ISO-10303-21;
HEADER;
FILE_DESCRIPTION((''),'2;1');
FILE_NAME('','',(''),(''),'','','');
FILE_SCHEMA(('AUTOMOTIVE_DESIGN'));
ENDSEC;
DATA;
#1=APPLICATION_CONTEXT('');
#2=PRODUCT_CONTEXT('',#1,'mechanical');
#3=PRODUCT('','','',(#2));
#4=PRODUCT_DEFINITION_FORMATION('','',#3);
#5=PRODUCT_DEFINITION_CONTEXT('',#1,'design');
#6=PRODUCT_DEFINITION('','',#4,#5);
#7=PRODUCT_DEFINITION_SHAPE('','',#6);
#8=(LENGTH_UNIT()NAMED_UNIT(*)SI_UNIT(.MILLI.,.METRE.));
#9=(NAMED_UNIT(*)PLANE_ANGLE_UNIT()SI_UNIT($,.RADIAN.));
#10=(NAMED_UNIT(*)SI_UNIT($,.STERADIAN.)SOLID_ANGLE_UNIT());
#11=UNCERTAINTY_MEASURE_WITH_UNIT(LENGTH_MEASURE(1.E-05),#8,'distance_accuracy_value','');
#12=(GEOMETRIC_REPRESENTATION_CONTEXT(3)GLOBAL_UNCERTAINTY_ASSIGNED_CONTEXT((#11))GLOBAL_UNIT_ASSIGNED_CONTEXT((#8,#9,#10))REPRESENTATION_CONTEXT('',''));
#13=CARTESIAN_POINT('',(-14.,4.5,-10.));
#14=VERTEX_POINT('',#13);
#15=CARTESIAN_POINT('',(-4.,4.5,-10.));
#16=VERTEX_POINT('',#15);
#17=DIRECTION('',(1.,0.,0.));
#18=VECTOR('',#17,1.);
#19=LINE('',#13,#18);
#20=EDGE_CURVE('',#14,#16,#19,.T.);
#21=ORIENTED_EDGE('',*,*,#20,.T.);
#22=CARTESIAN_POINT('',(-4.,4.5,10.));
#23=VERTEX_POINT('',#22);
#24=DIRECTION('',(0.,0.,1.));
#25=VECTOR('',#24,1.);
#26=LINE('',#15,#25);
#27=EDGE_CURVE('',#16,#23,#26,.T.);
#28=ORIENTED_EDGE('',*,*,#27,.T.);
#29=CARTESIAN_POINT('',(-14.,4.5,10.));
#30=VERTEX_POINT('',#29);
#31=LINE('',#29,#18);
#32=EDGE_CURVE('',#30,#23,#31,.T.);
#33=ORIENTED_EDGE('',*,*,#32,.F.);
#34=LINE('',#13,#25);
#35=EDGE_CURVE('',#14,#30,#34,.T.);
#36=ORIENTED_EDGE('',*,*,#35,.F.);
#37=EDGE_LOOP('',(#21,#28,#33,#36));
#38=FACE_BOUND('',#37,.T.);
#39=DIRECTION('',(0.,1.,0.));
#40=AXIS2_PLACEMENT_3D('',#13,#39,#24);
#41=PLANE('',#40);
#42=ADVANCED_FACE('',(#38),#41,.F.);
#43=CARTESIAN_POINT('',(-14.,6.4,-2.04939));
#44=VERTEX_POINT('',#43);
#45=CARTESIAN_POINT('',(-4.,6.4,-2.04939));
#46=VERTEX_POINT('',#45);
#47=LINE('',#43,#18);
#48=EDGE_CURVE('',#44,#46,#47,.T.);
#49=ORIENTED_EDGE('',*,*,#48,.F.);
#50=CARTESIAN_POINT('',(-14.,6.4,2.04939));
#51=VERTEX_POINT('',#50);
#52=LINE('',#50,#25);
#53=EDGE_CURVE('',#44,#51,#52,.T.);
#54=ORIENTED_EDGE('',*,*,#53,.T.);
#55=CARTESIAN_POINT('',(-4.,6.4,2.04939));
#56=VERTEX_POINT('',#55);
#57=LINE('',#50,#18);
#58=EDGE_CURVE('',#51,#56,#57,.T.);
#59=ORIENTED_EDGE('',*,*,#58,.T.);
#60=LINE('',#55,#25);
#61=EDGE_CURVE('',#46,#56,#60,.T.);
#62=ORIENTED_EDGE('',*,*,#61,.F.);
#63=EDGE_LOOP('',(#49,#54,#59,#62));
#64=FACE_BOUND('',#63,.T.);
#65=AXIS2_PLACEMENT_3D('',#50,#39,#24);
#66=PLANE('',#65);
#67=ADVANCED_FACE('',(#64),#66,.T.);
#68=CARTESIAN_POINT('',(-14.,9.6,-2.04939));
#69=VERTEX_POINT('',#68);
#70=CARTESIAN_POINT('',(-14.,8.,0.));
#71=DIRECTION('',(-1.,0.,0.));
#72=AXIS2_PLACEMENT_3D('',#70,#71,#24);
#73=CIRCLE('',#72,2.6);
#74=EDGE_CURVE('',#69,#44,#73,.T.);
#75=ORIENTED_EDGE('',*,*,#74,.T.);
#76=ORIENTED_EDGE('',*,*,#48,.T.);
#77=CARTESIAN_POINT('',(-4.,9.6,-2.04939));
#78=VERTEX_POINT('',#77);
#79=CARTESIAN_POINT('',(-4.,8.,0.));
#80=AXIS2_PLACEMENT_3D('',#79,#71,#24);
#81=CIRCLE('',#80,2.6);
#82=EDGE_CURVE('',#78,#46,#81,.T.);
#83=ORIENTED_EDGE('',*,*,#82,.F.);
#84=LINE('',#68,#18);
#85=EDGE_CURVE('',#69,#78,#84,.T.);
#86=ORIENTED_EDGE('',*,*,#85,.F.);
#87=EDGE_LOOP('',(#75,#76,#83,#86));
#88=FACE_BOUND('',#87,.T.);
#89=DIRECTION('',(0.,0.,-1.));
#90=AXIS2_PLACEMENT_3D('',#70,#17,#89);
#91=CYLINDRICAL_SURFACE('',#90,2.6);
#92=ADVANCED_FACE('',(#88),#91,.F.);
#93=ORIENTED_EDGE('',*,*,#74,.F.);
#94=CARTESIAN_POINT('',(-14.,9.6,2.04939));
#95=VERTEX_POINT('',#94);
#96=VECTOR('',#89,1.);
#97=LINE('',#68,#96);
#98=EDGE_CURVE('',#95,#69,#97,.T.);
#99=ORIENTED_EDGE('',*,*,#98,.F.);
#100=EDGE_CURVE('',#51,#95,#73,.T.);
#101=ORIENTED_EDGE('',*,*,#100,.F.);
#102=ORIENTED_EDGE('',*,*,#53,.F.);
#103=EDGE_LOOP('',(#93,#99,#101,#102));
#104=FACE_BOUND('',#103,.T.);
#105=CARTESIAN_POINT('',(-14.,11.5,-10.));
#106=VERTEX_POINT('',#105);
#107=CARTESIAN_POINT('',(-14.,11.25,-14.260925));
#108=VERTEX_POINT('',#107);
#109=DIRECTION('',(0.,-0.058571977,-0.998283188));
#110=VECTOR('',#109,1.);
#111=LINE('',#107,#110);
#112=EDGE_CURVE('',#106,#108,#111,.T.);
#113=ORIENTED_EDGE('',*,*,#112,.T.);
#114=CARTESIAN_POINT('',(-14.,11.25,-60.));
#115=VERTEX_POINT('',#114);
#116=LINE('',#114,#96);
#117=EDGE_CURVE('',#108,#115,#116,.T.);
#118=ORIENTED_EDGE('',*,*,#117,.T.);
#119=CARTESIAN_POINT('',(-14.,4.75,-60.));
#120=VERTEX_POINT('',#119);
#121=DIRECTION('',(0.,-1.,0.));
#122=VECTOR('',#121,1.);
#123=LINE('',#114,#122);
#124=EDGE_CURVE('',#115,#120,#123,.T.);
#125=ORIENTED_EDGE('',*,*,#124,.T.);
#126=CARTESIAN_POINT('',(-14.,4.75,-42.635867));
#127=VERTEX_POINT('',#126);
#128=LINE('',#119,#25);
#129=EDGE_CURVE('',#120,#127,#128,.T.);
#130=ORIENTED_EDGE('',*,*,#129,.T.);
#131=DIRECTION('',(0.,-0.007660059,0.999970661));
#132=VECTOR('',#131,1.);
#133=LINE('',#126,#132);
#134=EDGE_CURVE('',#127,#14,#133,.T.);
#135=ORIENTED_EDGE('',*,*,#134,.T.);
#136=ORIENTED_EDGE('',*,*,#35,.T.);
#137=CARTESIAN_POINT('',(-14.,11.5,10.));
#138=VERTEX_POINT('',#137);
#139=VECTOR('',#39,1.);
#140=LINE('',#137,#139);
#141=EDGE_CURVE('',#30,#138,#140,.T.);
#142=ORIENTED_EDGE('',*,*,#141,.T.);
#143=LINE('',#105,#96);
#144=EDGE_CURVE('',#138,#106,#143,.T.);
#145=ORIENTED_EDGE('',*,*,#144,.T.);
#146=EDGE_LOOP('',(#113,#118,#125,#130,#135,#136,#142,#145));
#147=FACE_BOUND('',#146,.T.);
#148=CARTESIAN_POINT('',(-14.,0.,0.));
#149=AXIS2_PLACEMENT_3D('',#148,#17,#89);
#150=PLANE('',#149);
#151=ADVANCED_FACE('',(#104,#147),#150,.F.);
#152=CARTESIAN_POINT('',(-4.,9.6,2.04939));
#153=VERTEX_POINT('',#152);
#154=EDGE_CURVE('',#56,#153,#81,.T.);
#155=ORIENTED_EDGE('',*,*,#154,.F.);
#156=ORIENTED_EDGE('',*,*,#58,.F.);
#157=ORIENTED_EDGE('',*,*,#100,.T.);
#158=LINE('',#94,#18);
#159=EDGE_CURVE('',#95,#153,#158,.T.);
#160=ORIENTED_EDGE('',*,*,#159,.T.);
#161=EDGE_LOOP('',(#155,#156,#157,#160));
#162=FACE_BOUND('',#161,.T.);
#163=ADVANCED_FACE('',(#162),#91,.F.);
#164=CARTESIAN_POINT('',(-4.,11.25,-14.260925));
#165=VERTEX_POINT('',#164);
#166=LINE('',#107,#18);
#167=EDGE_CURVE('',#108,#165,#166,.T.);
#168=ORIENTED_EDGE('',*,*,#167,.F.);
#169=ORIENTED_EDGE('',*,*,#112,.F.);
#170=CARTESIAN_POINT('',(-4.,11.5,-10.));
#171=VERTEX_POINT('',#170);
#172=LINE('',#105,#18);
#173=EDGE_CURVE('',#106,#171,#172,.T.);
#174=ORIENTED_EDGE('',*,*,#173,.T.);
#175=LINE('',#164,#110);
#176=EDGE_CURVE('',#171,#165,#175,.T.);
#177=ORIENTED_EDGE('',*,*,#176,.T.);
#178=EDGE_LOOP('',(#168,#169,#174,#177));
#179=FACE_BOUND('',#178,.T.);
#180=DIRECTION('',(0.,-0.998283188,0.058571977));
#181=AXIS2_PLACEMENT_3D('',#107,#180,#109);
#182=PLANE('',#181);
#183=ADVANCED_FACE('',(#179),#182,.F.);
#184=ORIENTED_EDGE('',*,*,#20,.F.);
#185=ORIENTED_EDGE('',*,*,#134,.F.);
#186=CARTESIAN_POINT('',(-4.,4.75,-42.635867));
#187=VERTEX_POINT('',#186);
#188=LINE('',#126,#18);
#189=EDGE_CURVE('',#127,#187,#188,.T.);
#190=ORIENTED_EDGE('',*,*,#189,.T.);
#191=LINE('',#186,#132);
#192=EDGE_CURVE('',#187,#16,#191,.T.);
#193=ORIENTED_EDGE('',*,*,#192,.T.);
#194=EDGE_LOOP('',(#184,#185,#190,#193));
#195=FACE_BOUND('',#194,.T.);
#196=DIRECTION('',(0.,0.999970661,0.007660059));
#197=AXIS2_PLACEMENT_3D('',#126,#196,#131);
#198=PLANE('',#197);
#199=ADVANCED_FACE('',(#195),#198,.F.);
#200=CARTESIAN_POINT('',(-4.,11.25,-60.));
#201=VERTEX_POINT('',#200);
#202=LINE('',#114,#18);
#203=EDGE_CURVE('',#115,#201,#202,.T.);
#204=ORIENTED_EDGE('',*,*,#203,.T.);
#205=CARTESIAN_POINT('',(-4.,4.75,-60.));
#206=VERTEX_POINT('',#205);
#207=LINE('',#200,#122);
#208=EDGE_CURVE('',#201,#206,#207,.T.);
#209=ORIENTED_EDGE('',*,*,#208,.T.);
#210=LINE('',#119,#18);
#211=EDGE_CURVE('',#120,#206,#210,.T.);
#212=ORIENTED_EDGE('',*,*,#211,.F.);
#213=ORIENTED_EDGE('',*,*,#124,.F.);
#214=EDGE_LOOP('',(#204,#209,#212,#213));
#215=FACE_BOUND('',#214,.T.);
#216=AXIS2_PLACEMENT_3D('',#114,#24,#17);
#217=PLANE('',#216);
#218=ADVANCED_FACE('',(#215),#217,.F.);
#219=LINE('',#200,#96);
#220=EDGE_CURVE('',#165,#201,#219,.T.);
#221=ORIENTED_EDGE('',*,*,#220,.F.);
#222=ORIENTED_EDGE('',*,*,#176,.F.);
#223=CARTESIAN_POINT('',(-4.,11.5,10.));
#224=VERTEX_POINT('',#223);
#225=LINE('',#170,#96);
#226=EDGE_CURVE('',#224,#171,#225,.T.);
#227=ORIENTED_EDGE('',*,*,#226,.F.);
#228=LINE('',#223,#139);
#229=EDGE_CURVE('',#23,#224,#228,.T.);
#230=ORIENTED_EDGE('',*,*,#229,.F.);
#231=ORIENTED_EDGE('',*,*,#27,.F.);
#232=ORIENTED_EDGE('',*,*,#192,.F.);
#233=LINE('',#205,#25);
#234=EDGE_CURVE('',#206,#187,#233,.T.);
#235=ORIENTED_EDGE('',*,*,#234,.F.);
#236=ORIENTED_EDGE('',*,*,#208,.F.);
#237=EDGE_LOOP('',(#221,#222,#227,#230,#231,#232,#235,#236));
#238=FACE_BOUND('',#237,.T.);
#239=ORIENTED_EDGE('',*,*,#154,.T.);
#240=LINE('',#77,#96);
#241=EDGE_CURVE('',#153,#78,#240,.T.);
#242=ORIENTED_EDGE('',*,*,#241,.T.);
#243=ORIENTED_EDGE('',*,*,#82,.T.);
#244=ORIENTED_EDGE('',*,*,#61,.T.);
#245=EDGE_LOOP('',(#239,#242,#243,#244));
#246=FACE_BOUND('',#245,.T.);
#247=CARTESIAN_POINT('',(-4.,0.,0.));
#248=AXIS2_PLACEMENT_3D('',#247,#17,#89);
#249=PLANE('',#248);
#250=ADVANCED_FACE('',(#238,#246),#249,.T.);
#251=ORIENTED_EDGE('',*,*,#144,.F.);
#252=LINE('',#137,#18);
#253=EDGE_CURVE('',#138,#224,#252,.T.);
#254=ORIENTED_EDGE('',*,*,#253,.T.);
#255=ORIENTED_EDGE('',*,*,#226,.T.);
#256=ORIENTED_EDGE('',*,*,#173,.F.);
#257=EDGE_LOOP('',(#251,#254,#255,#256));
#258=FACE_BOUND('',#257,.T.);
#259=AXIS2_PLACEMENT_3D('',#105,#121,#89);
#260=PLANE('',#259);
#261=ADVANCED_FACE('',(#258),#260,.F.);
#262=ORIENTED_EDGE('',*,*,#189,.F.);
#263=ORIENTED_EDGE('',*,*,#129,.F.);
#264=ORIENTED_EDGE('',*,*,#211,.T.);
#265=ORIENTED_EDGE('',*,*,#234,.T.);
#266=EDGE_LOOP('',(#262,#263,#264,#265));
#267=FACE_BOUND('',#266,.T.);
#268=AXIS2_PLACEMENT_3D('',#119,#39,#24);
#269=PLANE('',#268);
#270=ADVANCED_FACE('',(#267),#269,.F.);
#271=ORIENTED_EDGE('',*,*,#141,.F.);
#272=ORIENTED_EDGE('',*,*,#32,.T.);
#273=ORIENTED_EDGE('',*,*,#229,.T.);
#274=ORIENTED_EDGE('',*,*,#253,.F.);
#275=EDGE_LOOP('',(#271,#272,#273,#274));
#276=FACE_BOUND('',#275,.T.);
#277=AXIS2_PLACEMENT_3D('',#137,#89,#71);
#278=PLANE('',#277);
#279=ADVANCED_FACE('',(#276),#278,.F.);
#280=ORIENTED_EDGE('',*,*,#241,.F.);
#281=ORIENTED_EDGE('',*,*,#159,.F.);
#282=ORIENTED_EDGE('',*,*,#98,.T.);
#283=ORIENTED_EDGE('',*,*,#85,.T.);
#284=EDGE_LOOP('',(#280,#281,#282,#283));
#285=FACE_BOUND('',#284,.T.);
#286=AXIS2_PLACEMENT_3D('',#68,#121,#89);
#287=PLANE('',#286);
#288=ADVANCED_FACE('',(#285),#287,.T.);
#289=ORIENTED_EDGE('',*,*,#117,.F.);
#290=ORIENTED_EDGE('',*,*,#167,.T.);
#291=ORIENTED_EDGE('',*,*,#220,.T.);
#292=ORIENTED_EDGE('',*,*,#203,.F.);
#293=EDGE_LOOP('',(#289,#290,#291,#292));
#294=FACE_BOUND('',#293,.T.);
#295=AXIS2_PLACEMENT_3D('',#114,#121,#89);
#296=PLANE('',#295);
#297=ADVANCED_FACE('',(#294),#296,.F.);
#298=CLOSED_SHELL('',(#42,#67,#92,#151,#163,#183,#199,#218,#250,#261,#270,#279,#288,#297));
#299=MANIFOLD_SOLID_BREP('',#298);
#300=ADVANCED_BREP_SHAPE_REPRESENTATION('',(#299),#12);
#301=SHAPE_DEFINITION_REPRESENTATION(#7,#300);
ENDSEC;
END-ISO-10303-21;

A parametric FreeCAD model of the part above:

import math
import FreeCAD as App
import Part
import Sketcher


def add_polygon(sketch, points):
    """Adds a closed chain of lines whose ends are joined by coincident constraints."""
    first, n = sketch.GeometryCount, len(points)
    for a, b in zip(points, points[1:] + points[:1]):
        sketch.addGeometry(Part.LineSegment(App.Vector(*a, 0), App.Vector(*b, 0)), False)
    for i in range(n):
        sketch.addConstraint(Sketcher.Constraint("Coincident", first + i, 2, first + (i + 1) % n, 1))

doc = App.newDocument("Part")
body = doc.addObject("PartDesign::Body", "Body")

sketch1 = body.newObject("Sketcher::SketchObject", "Sketch")
sketch1.AttachmentSupport = (doc.getObject("YZ_Plane"), [""])
sketch1.MapMode = "FlatFace"
sketch1.AttachmentOffset = App.Placement(App.Vector(0, 0, -4), App.Rotation())
add_polygon(sketch1, [(11.5, 10), (11.5, -10), (11.25, -14.260925), (11.25, -60), (4.75, -60), (4.75, -42.635867), (4.5, -10), (4.5, 10)])
sketch1.addGeometry(Part.LineSegment(App.Vector(9.6, -2.04939, 0), App.Vector(9.6, 2.04939, 0)), False)
sketch1.addGeometry(Part.ArcOfCircle(Part.Circle(App.Vector(8, 0, 0), App.Vector(0, 0, 1), 2.6), math.radians(52.020128), math.radians(127.979872)), False)
sketch1.addGeometry(Part.LineSegment(App.Vector(6.4, 2.04939, 0), App.Vector(6.4, -2.04939, 0)), False)
sketch1.addGeometry(Part.ArcOfCircle(Part.Circle(App.Vector(8, 0, 0), App.Vector(0, 0, 1), 2.6), math.radians(-127.979872), math.radians(-52.020128)), False)
sketch1.addConstraint([
    Sketcher.Constraint("Coincident", 8, 2, 9, 1),
    Sketcher.Constraint("Coincident", 9, 2, 10, 1),
    Sketcher.Constraint("Coincident", 10, 2, 11, 1),
    Sketcher.Constraint("Coincident", 11, 2, 8, 1),
    Sketcher.Constraint("Vertical", 0),
    Sketcher.Constraint("Vertical", 2),
    Sketcher.Constraint("Horizontal", 3),
    Sketcher.Constraint("Vertical", 4),
    Sketcher.Constraint("Vertical", 6),
    Sketcher.Constraint("Horizontal", 7),
    Sketcher.Constraint("Vertical", 8),
    Sketcher.Constraint("Vertical", 10),
    Sketcher.Constraint("Coincident", 11, 3, 9, 3),
    Sketcher.Constraint("Equal", 9, 11),
    Sketcher.Constraint("PointOnObject", 9, 3, -1),
    Sketcher.Constraint("Horizontal", 0, 2, 5, 2),
    Sketcher.Constraint("Horizontal", 8, 2, 9, 2),
    Sketcher.Constraint("Radius", 9, 2.6),
    Sketcher.Constraint("DistanceX", 7, 1, 7, 2, 7.0),
    Sketcher.Constraint("DistanceY", 0, 2, 0, 1, 20.0),
    Sketcher.Constraint("DistanceX", 3, 2, 3, 1, 6.5),
    Sketcher.Constraint("DistanceX", -1, 1, 9, 3, 8.0),
    Sketcher.Constraint("DistanceY", 0, 2, -1, 1, 10.0),
    Sketcher.Constraint("DistanceY", 2, 2, -1, 1, 60.0),
    Sketcher.Constraint("DistanceX", -1, 1, 0, 2, 11.5),
    Sketcher.Constraint("DistanceX", -1, 1, 8, 2, 9.6),
    Sketcher.Constraint("DistanceX", -1, 1, 1, 2, 11.25),
    Sketcher.Constraint("DistanceY", 2, 2, 2, 1, 45.739075),
    Sketcher.Constraint("DistanceY", 4, 1, 4, 2, 17.364133),
])
pad1 = body.newObject("PartDesign::Pad", "Pad")
pad1.Profile = sketch1
pad1.Length = 10
pad1.Reversed = True

doc.recompute()
